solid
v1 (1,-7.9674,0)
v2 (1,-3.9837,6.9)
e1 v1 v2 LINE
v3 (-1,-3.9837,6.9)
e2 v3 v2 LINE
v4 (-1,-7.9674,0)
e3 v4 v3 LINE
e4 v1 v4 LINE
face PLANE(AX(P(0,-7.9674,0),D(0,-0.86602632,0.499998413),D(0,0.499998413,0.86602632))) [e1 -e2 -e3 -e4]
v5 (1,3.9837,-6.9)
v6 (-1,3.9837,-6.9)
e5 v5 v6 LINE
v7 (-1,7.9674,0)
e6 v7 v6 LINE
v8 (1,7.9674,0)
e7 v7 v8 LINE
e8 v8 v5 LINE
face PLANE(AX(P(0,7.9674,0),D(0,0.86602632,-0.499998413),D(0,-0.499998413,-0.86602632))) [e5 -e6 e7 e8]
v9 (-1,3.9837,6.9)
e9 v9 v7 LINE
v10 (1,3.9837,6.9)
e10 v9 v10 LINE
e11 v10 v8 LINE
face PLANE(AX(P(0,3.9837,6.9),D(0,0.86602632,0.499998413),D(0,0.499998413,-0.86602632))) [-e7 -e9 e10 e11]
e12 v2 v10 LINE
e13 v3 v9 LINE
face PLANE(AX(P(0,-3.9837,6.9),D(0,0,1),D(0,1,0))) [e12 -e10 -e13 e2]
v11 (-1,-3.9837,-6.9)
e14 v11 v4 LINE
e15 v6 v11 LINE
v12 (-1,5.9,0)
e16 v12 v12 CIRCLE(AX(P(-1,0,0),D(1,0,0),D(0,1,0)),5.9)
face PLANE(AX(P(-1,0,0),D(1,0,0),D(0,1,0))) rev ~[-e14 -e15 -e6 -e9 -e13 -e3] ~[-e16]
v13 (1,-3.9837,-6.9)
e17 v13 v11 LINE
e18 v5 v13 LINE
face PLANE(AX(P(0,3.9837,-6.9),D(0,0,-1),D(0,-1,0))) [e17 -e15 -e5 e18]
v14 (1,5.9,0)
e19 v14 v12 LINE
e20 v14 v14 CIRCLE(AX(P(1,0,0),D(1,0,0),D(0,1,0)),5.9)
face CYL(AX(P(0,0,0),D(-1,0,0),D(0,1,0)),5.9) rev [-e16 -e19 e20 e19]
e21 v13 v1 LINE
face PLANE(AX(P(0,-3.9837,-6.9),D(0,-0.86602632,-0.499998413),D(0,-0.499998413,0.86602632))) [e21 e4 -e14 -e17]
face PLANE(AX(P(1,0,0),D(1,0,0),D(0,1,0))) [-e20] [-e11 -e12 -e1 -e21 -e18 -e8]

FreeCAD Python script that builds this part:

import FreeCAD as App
import Part
import Sketcher
Q = App.Units.Quantity

doc = App.newDocument("Part")
body = doc.addObject("PartDesign::Body", "Body")

# Sketch on YZ plane
sketch1 = doc.addObject("Sketcher::SketchObject", "Sketch")
body.addObject(sketch1)
sketch1.AttachmentSupport = (doc.YZ_Plane, [""])
sketch1.MapMode = "FlatFace"
sketch1.addGeometry(Part.LineSegment(App.Vector(4, -7, 0), App.Vector(8, 0, 0)), False)
sketch1.addGeometry(Part.LineSegment(App.Vector(8, 0, 0), App.Vector(4, 7, 0)), False)
sketch1.addGeometry(Part.LineSegment(App.Vector(4, 7, 0), App.Vector(-4, 7, 0)), False)
sketch1.addGeometry(Part.LineSegment(App.Vector(-4, 7, 0), App.Vector(-8, 0, 0)), False)
sketch1.addGeometry(Part.LineSegment(App.Vector(-8, 0, 0), App.Vector(-4, -7, 0)), False)
sketch1.addGeometry(Part.LineSegment(App.Vector(-4, -7, 0), App.Vector(4, -7, 0)), False)
sketch1.addGeometry(Part.Circle(App.Vector(0, 0, 0), App.Vector(0, 0, 1), 6), False)
sketch1.addConstraint(Sketcher.Constraint("Coincident", 0, 2, 1, 1))
sketch1.addConstraint(Sketcher.Constraint("Coincident", 1, 2, 2, 1))
sketch1.addConstraint(Sketcher.Constraint("Coincident", 2, 2, 3, 1))
sketch1.addConstraint(Sketcher.Constraint("Coincident", 3, 2, 4, 1))
sketch1.addConstraint(Sketcher.Constraint("Coincident", 4, 2, 5, 1))
sketch1.addConstraint(Sketcher.Constraint("Coincident", 5, 2, 0, 1))
sketch1.addConstraint(Sketcher.Constraint("Horizontal", 2))
sketch1.addConstraint(Sketcher.Constraint("Horizontal", 5))
sketch1.addConstraint(Sketcher.Constraint("Coincident", 6, 3, -1, 1))
sketch1.addConstraint(Sketcher.Constraint("Symmetric", 0, 2, 3, 2, -1, 1))
sketch1.addConstraint(Sketcher.Constraint("Symmetric", 1, 2, 4, 2, -1, 1))
sketch1.addConstraint(Sketcher.Constraint("PointOnObject", 0, 2, -1))
sketch1.addConstraint(Sketcher.Constraint("Parallel", 0, 3))
sketch1.addConstraint(Sketcher.Constraint("Vertical", 2, 2, 4, 2))
sketch1.addConstraint(Sketcher.Constraint("Diameter", 6, 11.8))
sketch1.addConstraint(Sketcher.Constraint("DistanceY", 4, 2, 2, 2, 13.8))
sketch1.addConstraint(Sketcher.Constraint("Angle", 0, Q("60 deg")))
sketch1.addConstraint(Sketcher.Constraint("DistanceX", 2, 2, 2, 1, 7.9674))
pad1 = doc.addObject("PartDesign::Pad", "Pad")
body.addObject(pad1)
pad1.Profile = sketch1
pad1.Length = 2
pad1.Midplane = True

doc.recompute()
